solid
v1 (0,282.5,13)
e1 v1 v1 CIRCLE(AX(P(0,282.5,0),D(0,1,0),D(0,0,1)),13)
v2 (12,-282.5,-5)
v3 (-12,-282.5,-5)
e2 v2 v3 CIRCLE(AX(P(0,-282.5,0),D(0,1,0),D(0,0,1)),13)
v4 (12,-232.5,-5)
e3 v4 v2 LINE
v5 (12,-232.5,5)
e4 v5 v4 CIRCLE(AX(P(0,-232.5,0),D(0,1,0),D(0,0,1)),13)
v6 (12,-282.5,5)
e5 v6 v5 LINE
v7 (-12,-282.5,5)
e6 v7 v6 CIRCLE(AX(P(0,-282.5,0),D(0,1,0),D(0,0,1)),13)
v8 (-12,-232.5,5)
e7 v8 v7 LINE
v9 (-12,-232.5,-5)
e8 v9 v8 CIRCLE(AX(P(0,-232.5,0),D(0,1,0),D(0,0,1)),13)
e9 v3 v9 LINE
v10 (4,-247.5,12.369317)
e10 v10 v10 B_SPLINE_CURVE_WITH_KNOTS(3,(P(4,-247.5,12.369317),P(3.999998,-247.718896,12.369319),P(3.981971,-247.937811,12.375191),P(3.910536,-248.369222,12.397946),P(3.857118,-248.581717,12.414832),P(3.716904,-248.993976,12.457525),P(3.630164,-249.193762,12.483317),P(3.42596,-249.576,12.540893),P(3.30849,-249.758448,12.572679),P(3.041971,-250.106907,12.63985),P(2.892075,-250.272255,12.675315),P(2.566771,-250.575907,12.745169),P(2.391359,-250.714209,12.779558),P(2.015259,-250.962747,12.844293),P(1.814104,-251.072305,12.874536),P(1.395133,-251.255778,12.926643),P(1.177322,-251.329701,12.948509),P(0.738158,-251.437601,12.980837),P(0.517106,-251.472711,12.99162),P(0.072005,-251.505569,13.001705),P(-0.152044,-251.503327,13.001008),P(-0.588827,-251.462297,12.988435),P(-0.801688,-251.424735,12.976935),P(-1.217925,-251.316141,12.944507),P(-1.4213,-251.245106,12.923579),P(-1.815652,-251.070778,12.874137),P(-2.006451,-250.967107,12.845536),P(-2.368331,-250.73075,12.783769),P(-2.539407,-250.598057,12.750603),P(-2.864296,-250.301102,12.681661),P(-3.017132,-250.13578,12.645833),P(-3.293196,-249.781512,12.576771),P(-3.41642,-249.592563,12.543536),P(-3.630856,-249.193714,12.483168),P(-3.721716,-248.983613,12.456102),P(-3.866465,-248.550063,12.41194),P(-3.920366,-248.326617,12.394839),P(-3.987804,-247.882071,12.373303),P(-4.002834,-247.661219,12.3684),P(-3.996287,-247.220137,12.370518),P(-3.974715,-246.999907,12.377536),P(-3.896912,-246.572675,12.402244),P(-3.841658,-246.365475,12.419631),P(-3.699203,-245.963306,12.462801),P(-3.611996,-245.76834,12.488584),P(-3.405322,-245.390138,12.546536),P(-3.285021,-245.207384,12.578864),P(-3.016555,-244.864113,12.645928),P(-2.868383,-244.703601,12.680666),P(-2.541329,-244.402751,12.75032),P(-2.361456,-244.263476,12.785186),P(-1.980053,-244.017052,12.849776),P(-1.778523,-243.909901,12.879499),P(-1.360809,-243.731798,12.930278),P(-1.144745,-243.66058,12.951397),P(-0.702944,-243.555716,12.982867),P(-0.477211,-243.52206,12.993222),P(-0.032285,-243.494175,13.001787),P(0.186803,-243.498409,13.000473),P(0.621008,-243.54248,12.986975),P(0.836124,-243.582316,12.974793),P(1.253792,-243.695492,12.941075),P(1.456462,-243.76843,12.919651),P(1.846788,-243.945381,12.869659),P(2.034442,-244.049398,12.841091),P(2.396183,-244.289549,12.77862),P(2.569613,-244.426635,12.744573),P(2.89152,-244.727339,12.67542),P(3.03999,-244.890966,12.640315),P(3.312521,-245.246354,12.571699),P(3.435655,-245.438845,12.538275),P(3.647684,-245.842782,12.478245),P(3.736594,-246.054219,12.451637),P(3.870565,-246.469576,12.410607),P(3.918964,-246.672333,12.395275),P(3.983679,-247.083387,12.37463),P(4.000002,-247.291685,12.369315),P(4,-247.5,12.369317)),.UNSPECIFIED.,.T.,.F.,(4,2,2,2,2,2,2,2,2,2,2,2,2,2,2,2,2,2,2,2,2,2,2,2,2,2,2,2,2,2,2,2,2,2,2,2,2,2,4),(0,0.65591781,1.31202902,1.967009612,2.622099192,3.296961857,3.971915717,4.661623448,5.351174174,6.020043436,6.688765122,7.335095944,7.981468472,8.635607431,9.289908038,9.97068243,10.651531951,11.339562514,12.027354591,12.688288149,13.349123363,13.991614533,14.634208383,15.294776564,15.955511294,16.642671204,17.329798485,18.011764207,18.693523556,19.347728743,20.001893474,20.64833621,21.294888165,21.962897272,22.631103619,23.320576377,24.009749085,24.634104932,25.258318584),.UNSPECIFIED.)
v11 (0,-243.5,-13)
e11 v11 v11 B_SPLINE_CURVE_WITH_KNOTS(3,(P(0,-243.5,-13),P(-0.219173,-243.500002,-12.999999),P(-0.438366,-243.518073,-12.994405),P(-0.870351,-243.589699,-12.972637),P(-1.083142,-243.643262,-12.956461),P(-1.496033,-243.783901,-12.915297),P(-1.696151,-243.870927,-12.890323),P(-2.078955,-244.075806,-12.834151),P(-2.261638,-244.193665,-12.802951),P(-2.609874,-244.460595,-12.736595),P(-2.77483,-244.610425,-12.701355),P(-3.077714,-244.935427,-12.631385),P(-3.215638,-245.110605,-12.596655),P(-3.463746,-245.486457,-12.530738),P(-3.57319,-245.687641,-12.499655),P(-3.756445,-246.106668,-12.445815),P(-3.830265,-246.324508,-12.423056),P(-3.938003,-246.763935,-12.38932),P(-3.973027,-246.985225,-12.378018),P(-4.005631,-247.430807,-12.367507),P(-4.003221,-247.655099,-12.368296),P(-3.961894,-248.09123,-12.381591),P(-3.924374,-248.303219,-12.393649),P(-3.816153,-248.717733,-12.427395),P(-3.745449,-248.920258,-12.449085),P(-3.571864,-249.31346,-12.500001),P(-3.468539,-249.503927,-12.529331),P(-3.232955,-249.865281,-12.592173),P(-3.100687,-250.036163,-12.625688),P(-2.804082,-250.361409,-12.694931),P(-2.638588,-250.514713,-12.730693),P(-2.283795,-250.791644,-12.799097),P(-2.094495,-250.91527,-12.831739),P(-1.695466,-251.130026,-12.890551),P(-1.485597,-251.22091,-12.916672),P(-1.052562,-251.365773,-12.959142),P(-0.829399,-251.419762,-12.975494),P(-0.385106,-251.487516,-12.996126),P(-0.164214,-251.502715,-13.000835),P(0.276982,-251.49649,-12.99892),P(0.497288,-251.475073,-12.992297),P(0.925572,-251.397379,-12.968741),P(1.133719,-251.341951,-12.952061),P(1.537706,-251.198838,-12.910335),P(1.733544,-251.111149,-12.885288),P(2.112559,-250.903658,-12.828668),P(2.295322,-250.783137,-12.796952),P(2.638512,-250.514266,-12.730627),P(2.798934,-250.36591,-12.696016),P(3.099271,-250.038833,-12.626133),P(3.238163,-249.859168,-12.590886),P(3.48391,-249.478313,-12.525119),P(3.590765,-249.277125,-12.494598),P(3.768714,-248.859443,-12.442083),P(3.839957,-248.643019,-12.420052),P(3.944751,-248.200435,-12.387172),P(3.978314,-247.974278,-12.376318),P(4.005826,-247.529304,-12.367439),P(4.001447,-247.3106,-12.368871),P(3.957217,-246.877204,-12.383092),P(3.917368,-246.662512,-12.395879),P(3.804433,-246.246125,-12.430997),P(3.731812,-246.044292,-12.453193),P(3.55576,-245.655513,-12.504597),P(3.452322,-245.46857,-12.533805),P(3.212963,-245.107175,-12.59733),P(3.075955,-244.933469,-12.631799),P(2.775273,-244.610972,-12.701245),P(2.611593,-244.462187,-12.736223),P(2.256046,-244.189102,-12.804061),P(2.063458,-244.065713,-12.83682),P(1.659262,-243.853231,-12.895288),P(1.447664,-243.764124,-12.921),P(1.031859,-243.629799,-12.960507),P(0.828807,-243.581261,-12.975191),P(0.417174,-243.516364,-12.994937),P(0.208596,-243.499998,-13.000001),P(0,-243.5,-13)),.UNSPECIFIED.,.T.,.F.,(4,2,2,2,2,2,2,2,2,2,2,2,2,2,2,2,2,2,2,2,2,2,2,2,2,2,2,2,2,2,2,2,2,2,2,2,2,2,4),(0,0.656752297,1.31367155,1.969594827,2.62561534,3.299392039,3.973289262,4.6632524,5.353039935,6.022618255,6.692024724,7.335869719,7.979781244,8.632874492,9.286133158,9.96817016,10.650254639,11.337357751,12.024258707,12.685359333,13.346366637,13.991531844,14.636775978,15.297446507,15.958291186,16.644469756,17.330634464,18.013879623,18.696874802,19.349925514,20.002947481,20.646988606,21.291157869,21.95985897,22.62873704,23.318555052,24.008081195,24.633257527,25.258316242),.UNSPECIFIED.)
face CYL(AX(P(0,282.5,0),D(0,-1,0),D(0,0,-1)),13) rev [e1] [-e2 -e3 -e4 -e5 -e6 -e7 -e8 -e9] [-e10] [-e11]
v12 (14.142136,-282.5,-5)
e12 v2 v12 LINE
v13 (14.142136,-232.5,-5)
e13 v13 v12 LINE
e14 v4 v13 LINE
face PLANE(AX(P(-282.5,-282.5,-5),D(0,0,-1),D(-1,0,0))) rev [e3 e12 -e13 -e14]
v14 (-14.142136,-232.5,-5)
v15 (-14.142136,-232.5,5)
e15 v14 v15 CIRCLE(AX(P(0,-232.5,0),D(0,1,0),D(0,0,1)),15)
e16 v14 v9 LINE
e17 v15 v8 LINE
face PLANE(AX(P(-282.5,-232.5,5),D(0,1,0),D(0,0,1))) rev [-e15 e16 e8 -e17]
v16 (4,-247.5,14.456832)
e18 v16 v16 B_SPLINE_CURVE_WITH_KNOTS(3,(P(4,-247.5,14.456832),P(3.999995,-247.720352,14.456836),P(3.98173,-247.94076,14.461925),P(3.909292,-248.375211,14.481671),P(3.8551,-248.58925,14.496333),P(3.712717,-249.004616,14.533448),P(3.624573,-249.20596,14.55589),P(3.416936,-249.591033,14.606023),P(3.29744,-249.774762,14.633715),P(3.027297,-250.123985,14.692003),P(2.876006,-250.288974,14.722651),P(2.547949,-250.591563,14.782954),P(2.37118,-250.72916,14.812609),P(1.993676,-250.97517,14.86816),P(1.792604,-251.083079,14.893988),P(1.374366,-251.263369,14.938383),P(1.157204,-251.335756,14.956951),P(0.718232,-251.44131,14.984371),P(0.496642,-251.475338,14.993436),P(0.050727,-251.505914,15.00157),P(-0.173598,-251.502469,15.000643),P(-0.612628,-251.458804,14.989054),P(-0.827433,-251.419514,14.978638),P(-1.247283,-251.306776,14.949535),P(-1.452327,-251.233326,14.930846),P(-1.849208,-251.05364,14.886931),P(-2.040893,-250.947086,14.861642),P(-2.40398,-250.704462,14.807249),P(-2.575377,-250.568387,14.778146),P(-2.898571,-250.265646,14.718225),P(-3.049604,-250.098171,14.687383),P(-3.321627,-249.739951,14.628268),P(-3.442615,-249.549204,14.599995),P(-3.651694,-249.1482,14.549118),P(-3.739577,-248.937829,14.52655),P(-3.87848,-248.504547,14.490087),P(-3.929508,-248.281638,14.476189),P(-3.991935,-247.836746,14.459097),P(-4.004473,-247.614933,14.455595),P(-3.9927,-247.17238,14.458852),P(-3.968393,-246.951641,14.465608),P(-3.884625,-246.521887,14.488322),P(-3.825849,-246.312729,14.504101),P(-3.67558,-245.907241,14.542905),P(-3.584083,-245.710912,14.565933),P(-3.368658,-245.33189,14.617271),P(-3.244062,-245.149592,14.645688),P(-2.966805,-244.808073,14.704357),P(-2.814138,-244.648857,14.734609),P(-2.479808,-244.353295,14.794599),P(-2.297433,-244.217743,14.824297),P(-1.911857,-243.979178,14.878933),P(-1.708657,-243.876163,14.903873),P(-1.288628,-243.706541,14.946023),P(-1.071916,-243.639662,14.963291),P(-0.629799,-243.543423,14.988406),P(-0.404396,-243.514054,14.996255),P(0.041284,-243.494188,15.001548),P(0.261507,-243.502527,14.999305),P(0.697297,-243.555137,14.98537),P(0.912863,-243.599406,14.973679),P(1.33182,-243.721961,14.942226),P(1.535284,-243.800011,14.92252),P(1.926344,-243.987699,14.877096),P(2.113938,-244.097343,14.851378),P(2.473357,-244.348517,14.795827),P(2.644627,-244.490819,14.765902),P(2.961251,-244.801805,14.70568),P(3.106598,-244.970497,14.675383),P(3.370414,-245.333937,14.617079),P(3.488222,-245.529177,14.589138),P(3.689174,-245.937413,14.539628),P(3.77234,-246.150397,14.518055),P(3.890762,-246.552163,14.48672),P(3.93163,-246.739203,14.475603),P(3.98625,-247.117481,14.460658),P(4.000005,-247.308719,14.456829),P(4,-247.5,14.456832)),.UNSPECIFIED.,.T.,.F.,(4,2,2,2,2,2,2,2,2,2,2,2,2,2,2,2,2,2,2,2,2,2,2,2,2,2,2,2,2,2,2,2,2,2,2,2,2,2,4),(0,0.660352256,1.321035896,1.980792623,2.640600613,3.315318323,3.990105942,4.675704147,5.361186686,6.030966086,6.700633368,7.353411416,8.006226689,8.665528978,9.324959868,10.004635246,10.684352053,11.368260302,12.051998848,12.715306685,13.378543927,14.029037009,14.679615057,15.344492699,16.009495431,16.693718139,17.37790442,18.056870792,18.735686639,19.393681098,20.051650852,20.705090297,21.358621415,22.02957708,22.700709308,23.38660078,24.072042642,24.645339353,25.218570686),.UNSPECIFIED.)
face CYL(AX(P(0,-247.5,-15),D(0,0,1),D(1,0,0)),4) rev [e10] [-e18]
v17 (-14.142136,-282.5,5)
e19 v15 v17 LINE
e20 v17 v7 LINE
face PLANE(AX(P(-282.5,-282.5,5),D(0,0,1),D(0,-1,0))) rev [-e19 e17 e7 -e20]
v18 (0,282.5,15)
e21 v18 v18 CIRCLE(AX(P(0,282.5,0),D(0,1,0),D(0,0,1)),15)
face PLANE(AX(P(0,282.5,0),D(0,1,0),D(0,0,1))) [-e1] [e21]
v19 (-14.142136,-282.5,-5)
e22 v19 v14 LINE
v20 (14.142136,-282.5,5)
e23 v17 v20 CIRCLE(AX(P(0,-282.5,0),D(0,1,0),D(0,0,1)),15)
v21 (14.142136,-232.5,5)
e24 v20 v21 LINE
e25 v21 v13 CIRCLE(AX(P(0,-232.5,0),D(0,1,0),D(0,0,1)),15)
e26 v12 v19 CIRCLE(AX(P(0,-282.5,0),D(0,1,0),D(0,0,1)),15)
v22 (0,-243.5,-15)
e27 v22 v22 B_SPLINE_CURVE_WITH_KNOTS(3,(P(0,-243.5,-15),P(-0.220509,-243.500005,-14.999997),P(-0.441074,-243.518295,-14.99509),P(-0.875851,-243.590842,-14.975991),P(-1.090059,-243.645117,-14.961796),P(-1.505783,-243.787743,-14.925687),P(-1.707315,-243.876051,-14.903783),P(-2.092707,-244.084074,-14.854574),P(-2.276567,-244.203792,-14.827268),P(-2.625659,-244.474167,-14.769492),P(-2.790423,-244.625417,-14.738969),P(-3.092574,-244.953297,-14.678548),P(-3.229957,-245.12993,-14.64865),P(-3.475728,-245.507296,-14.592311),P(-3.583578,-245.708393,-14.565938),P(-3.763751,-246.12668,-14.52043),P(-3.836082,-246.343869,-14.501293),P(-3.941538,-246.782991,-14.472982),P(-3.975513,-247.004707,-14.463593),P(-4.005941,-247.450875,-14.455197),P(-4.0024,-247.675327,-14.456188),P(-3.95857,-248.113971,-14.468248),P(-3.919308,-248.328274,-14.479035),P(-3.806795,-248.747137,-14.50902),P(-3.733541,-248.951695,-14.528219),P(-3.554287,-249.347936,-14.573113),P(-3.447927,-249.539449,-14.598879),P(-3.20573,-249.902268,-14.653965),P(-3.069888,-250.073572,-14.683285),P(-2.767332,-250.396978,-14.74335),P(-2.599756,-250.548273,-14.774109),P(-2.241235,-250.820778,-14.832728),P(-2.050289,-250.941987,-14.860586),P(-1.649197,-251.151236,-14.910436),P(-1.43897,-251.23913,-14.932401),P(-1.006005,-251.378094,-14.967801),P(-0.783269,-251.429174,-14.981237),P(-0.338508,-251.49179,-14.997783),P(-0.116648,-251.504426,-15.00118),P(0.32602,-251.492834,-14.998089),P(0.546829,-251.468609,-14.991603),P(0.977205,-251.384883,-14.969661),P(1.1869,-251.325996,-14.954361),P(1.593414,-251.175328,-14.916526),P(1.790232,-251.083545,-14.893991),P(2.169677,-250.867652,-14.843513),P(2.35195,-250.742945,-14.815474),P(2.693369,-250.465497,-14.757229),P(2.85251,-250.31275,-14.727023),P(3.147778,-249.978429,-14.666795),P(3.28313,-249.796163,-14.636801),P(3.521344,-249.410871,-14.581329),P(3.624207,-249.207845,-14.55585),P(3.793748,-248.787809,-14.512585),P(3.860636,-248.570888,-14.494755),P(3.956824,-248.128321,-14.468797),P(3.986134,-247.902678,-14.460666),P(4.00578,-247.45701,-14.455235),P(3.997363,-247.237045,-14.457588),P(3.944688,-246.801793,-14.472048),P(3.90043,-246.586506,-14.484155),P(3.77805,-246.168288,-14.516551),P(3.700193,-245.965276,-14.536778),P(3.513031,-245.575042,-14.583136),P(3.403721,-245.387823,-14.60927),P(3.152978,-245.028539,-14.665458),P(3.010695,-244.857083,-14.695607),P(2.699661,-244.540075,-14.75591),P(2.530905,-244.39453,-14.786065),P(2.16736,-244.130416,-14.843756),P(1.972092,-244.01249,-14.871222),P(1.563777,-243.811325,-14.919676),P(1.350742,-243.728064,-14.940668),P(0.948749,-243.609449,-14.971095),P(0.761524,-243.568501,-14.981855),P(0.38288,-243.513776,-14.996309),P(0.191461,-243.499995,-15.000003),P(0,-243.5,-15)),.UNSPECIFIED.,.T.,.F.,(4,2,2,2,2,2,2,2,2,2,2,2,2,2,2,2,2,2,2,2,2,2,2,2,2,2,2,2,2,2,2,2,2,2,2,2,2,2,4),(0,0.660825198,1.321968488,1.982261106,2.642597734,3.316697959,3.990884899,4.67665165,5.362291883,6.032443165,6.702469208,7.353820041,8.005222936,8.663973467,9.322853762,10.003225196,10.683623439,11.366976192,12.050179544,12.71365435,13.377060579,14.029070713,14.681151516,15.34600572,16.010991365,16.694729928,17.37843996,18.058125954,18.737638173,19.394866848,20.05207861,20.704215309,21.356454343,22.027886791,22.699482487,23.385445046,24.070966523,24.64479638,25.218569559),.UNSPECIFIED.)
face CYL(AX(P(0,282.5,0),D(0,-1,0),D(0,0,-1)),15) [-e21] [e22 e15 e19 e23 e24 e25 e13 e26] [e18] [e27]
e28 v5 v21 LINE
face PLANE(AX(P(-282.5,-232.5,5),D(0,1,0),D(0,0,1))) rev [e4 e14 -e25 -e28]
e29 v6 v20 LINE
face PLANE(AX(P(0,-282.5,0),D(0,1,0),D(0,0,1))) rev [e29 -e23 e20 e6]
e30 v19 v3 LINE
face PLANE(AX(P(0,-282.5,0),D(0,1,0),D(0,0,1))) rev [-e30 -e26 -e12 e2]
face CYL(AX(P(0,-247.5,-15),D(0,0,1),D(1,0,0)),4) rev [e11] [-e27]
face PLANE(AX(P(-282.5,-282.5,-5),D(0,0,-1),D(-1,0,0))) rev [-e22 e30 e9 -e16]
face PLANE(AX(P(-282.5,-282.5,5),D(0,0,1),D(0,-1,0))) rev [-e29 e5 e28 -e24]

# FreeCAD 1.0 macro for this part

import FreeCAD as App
import Part
import Sketcher

V = App.Vector
Q = App.Units.Quantity

doc = App.newDocument("Part")
body = doc.addObject("PartDesign::Body", "Body")

# Sketch on XZ plane
sketch1 = body.newObject("Sketcher::SketchObject", "Sketch")
sketch1.AttachmentSupport = (doc.getObject("XZ_Plane"), [""])
sketch1.MapMode = "FlatFace"
sketch1.addGeometry([
    Part.Circle(V(0, 0, 0), V(0, 0, 1), 15),
    Part.Circle(V(0, 0, 0), V(0, 0, 1), 13),
], False)
sketch1.addConstraint([
    Sketcher.Constraint("Coincident", 0, 3, -1, 1),
    Sketcher.Constraint("Coincident", 1, 3, -1, 1),
    Sketcher.Constraint("Diameter", 0, Q("30 mm")),
    Sketcher.Constraint("Diameter", 1, Q("26 mm")),
])
pad1 = body.newObject("PartDesign::Pad", "Pad")
pad1.Profile = sketch1
pad1.Length = 565
pad1.Midplane = True

# Sketch on YZ plane
sketch2 = body.newObject("Sketcher::SketchObject", "Sketch001")
sketch2.AttachmentSupport = (doc.getObject("YZ_Plane"), [""])
sketch2.MapMode = "FlatFace"
sketch2.addGeometry([
    Part.LineSegment(V(-232, 5, 0), V(-282, 5, 0)),
    Part.LineSegment(V(-282, 5, 0), V(-282, -5, 0)),
    Part.LineSegment(V(-282, -5, 0), V(-232, -5, 0)),
    Part.LineSegment(V(-232, -5, 0), V(-232, 5, 0)),
], False)
sketch2.addConstraint([
    Sketcher.Constraint("Coincident", 0, 2, 1, 1),
    Sketcher.Constraint("Coincident", 1, 2, 2, 1),
    Sketcher.Constraint("Coincident", 2, 2, 3, 1),
    Sketcher.Constraint("Coincident", 3, 2, 0, 1),
    Sketcher.Constraint("Horizontal", 0),
    Sketcher.Constraint("Vertical", 1),
    Sketcher.Constraint("Horizontal", 2),
    Sketcher.Constraint("Vertical", 3),
    Sketcher.Constraint("DistanceX", 0, 2, 0, 1, Q("50 mm")),
    Sketcher.Constraint("DistanceY", 1, 2, 1, 1, Q("10 mm")),
    Sketcher.Constraint("DistanceY", -1, 1, 0, 2, Q("5 mm")),
    Sketcher.Constraint("DistanceX", 0, 2, -1, 1, Q("282.5 mm")),
])
pocket1 = body.newObject("PartDesign::Pocket", "Pocket")
pocket1.Profile = sketch2
pocket1.Length = 565
pocket1.Midplane = True

# Sketch on XY plane
sketch3 = body.newObject("Sketcher::SketchObject", "Sketch002")
sketch3.AttachmentSupport = (doc.getObject("XY_Plane"), [""])
sketch3.MapMode = "FlatFace"
sketch3.addGeometry(Part.Circle(V(0, -247.5, 0), V(0, 0, 1), 4), False)
sketch3.addConstraint([
    Sketcher.Constraint("PointOnObject", 0, 3, -2),
    Sketcher.Constraint("Diameter", 0, Q("8 mm")),
    Sketcher.Constraint("DistanceY", 0, 3, -1, 1, Q("247.5 mm")),
])
pocket2 = body.newObject("PartDesign::Pocket", "Pocket001")
pocket2.Profile = sketch3
pocket2.Type = "ThroughAll"
pocket2.Midplane = True

doc.recompute()
